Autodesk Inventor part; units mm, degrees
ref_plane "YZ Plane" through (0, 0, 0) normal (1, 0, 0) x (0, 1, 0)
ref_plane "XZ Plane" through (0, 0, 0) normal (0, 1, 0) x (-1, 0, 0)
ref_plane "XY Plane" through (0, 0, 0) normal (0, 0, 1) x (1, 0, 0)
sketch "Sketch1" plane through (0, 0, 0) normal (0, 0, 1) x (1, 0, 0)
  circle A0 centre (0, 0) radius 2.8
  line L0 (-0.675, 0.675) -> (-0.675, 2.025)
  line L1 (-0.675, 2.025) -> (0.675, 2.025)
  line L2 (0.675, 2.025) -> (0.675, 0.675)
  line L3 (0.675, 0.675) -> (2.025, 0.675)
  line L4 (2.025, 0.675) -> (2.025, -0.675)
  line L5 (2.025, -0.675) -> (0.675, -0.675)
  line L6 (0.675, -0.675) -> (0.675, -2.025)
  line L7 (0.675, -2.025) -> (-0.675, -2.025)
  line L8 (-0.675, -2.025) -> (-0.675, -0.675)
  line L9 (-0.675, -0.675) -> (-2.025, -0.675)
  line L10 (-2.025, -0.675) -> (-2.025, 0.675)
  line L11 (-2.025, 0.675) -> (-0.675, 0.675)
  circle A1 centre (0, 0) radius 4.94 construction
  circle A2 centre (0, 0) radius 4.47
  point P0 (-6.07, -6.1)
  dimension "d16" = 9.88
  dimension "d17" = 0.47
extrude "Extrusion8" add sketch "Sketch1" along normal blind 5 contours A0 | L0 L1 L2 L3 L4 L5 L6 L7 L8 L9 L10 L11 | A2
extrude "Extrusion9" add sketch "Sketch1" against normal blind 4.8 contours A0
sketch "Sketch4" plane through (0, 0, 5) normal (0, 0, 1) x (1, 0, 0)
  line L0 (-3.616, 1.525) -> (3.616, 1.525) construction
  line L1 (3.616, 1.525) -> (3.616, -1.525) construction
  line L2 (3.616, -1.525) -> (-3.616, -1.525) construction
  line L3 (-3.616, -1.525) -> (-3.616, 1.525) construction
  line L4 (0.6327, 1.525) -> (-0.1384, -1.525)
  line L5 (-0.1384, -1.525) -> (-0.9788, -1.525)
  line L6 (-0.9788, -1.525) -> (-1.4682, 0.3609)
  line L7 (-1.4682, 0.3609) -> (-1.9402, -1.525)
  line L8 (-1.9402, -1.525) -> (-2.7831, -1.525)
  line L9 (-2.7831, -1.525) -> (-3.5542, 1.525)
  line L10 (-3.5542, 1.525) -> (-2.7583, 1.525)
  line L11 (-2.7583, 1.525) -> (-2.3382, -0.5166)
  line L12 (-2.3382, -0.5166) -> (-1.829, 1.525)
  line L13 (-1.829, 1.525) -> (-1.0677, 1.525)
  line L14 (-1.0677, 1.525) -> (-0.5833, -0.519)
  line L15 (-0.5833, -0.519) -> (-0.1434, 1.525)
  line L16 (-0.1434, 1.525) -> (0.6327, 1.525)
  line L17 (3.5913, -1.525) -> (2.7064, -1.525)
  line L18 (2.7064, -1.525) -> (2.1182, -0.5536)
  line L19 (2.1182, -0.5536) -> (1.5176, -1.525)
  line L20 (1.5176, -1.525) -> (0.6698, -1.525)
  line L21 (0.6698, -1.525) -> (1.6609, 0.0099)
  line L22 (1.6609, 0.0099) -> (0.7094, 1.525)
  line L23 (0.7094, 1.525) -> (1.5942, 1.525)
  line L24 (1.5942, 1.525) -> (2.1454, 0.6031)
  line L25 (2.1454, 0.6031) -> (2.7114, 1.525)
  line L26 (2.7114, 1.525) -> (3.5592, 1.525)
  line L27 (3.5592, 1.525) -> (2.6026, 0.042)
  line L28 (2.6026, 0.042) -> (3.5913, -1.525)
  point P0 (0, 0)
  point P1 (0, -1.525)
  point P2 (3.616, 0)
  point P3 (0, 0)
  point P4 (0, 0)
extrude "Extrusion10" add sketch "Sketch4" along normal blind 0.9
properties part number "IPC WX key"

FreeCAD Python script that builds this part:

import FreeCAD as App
import Part
import Sketcher
Q = App.Units.Quantity

doc = App.newDocument("Part")
body = doc.addObject("PartDesign::Body", "Body")

# Sketch on XY plane
sketch1 = body.newObject("Sketcher::SketchObject", "Sketch")
sketch1.AttachmentSupport = (doc.getObject("XY_Plane"), [""])
sketch1.MapMode = "FlatFace"
sketch1.addGeometry(Part.Circle(App.Vector(0, 0, 0), App.Vector(0, 0, 1), 4.47), False)
sketch1.addConstraint([
    Sketcher.Constraint("Coincident", 0, 3, -1, 1),
    Sketcher.Constraint("Diameter", 0, 8.94),
])
pad1 = body.newObject("PartDesign::Pad", "Pad")
pad1.Profile = sketch1
pad1.Length = 5

# Sketch on XY plane
sketch2 = body.newObject("Sketcher::SketchObject", "Sketch001")
sketch2.AttachmentSupport = (doc.getObject("XY_Plane"), [""])
sketch2.MapMode = "FlatFace"
sketch2.addGeometry([
    Part.Circle(App.Vector(0, 0, 0), App.Vector(0, 0, 1), 2.8),  # 0
    Part.LineSegment(App.Vector(-2.025, 0.675, 0), App.Vector(-0.675, 0.675, 0)),  # 1
    Part.LineSegment(App.Vector(-0.675, 0.675, 0), App.Vector(-0.675, 2.025, 0)),  # 2
    Part.LineSegment(App.Vector(-0.675, 2.025, 0), App.Vector(0.675, 2.025, 0)),  # 3
    Part.LineSegment(App.Vector(0.675, 2.025, 0), App.Vector(0.675, 0.675, 0)),  # 4
    Part.LineSegment(App.Vector(0.675, 0.675, 0), App.Vector(2.025, 0.675, 0)),  # 5
    Part.LineSegment(App.Vector(2.025, 0.675, 0), App.Vector(2.025, -0.675, 0)),  # 6
    Part.LineSegment(App.Vector(2.025, -0.675, 0), App.Vector(0.675, -0.675, 0)),  # 7
    Part.LineSegment(App.Vector(0.675, -0.675, 0), App.Vector(0.675, -2.025, 0)),  # 8
    Part.LineSegment(App.Vector(0.675, -2.025, 0), App.Vector(-0.675, -2.025, 0)),  # 9
    Part.LineSegment(App.Vector(-0.675, -2.025, 0), App.Vector(-0.675, -0.675, 0)),  # 10
    Part.LineSegment(App.Vector(-0.675, -0.675, 0), App.Vector(-2.025, -0.675, 0)),  # 11
    Part.LineSegment(App.Vector(-2.025, -0.675, 0), App.Vector(-2.025, 0.675, 0)),  # 12
], False)
sketch2.addConstraint([
    Sketcher.Constraint("Coincident", 1, 2, 2, 1),
    Sketcher.Constraint("Coincident", 2, 2, 3, 1),
    Sketcher.Constraint("Coincident", 3, 2, 4, 1),
    Sketcher.Constraint("Coincident", 4, 2, 5, 1),
    Sketcher.Constraint("Coincident", 5, 2, 6, 1),
    Sketcher.Constraint("Coincident", 6, 2, 7, 1),
    Sketcher.Constraint("Coincident", 7, 2, 8, 1),
    Sketcher.Constraint("Coincident", 8, 2, 9, 1),
    Sketcher.Constraint("Coincident", 9, 2, 10, 1),
    Sketcher.Constraint("Coincident", 10, 2, 11, 1),
    Sketcher.Constraint("Coincident", 11, 2, 12, 1),
    Sketcher.Constraint("Coincident", 12, 2, 1, 1),
    Sketcher.Constraint("Horizontal", 1),
    Sketcher.Constraint("Vertical", 2),
    Sketcher.Constraint("Horizontal", 3),
    Sketcher.Constraint("Vertical", 4),
    Sketcher.Constraint("Horizontal", 5),
    Sketcher.Constraint("Vertical", 6),
    Sketcher.Constraint("Horizontal", 7),
    Sketcher.Constraint("Vertical", 8),
    Sketcher.Constraint("Horizontal", 9),
    Sketcher.Constraint("Vertical", 10),
    Sketcher.Constraint("Horizontal", 11),
    Sketcher.Constraint("Vertical", 12),
    Sketcher.Constraint("Coincident", 0, 3, -1, 1),
    Sketcher.Constraint("Symmetric", 1, 2, 7, 2, -1, 1),
    Sketcher.Constraint("Symmetric", 3, 2, 9, 2, -1, 1),
    Sketcher.Constraint("Symmetric", 5, 2, 11, 2, -1, 1),
    Sketcher.Constraint("Symmetric", 1, 2, 4, 2, -2),
    Sketcher.Constraint("Equal", 1, 3),
    Sketcher.Constraint("Equal", 11, 2),
    Sketcher.Constraint("Equal", 4, 6),
    Sketcher.Constraint("Diameter", 0, 5.6),
    Sketcher.Constraint("DistanceX", 1, 1, 1, 2, 1.35),
])
pad2 = body.newObject("PartDesign::Pad", "Pad001")
pad2.Profile = sketch2
pad2.Length = 4.8
pad2.Reversed = True

# Sketch on XY plane
sketch3 = body.newObject("Sketcher::SketchObject", "Sketch002")
sketch3.AttachmentSupport = (doc.getObject("XY_Plane"), [""])
sketch3.MapMode = "FlatFace"
sketch3.AttachmentOffset = App.Placement(App.Vector(0, 0, 5), App.Rotation())
sketch3.addGeometry([
    Part.LineSegment(App.Vector(-0.1384, -1.525, 0), App.Vector(0.6327, 1.525, 0)),  # 0
    Part.LineSegment(App.Vector(0.6327, 1.525, 0), App.Vector(-0.1434, 1.525, 0)),  # 1
    Part.LineSegment(App.Vector(-0.1434, 1.525, 0), App.Vector(-0.5833, -0.519, 0)),  # 2
    Part.LineSegment(App.Vector(-0.5833, -0.519, 0), App.Vector(-1.0677, 1.525, 0)),  # 3
    Part.LineSegment(App.Vector(-1.0677, 1.525, 0), App.Vector(-1.829, 1.525, 0)),  # 4
    Part.LineSegment(App.Vector(-1.829, 1.525, 0), App.Vector(-2.3382, -0.5166, 0)),  # 5
    Part.LineSegment(App.Vector(-2.3382, -0.5166, 0), App.Vector(-2.7583, 1.525, 0)),  # 6
    Part.LineSegment(App.Vector(-2.7583, 1.525, 0), App.Vector(-3.5542, 1.525, 0)),  # 7
    Part.LineSegment(App.Vector(-3.5542, 1.525, 0), App.Vector(-2.7831, -1.525, 0)),  # 8
    Part.LineSegment(App.Vector(-2.7831, -1.525, 0), App.Vector(-1.9402, -1.525, 0)),  # 9
    Part.LineSegment(App.Vector(-1.9402, -1.525, 0), App.Vector(-1.4682, 0.3609, 0)),  # 10
    Part.LineSegment(App.Vector(-1.4682, 0.3609, 0), App.Vector(-0.9788, -1.525, 0)),  # 11
    Part.LineSegment(App.Vector(-0.9788, -1.525, 0), App.Vector(-0.1384, -1.525, 0)),  # 12
    Part.LineSegment(App.Vector(2.7064, -1.525, 0), App.Vector(3.5913, -1.525, 0)),  # 13
    Part.LineSegment(App.Vector(3.5913, -1.525, 0), App.Vector(2.6026, 0.042, 0)),  # 14
    Part.LineSegment(App.Vector(2.6026, 0.042, 0), App.Vector(3.5592, 1.525, 0)),  # 15
    Part.LineSegment(App.Vector(3.5592, 1.525, 0), App.Vector(2.7114, 1.525, 0)),  # 16
    Part.LineSegment(App.Vector(2.7114, 1.525, 0), App.Vector(2.1454, 0.6031, 0)),  # 17
    Part.LineSegment(App.Vector(2.1454, 0.6031, 0), App.Vector(1.5942, 1.525, 0)),  # 18
    Part.LineSegment(App.Vector(1.5942, 1.525, 0), App.Vector(0.7094, 1.525, 0)),  # 19
    Part.LineSegment(App.Vector(0.7094, 1.525, 0), App.Vector(1.6609, 0.0099, 0)),  # 20
    Part.LineSegment(App.Vector(1.6609, 0.0099, 0), App.Vector(0.6698, -1.525, 0)),  # 21
    Part.LineSegment(App.Vector(0.6698, -1.525, 0), App.Vector(1.5176, -1.525, 0)),  # 22
    Part.LineSegment(App.Vector(1.5176, -1.525, 0), App.Vector(2.1182, -0.5536, 0)),  # 23
    Part.LineSegment(App.Vector(2.1182, -0.5536, 0), App.Vector(2.7064, -1.525, 0)),  # 24
], False)
sketch3.addConstraint([
    Sketcher.Constraint("Coincident", 0, 2, 1, 1),
    Sketcher.Constraint("Coincident", 1, 2, 2, 1),
    Sketcher.Constraint("Coincident", 2, 2, 3, 1),
    Sketcher.Constraint("Coincident", 3, 2, 4, 1),
    Sketcher.Constraint("Coincident", 4, 2, 5, 1),
    Sketcher.Constraint("Coincident", 5, 2, 6, 1),
    Sketcher.Constraint("Coincident", 6, 2, 7, 1),
    Sketcher.Constraint("Coincident", 7, 2, 8, 1),
    Sketcher.Constraint("Coincident", 8, 2, 9, 1),
    Sketcher.Constraint("Coincident", 9, 2, 10, 1),
    Sketcher.Constraint("Coincident", 10, 2, 11, 1),
    Sketcher.Constraint("Coincident", 11, 2, 12, 1),
    Sketcher.Constraint("Coincident", 12, 2, 0, 1),
    Sketcher.Constraint("Coincident", 13, 2, 14, 1),
    Sketcher.Constraint("Coincident", 14, 2, 15, 1),
    Sketcher.Constraint("Coincident", 15, 2, 16, 1),
    Sketcher.Constraint("Coincident", 16, 2, 17, 1),
    Sketcher.Constraint("Coincident", 17, 2, 18, 1),
    Sketcher.Constraint("Coincident", 18, 2, 19, 1),
    Sketcher.Constraint("Coincident", 19, 2, 20, 1),
    Sketcher.Constraint("Coincident", 20, 2, 21, 1),
    Sketcher.Constraint("Coincident", 21, 2, 22, 1),
    Sketcher.Constraint("Coincident", 22, 2, 23, 1),
    Sketcher.Constraint("Coincident", 23, 2, 24, 1),
    Sketcher.Constraint("Coincident", 24, 2, 13, 1),
    Sketcher.Constraint("Horizontal", 1),
    Sketcher.Constraint("Horizontal", 4),
    Sketcher.Constraint("Horizontal", 7),
    Sketcher.Constraint("Horizontal", 9),
    Sketcher.Constraint("Horizontal", 12),
    Sketcher.Constraint("Horizontal", 13),
    Sketcher.Constraint("Horizontal", 16),
    Sketcher.Constraint("Horizontal", 19),
    Sketcher.Constraint("Horizontal", 22),
    Sketcher.Constraint("Parallel", 15, 21),
    Sketcher.Constraint("Horizontal", 1, 2, 3, 2),
    Sketcher.Constraint("Horizontal", 4, 2, 6, 2),
    Sketcher.Constraint("Horizontal", 9, 2, 11, 2),
    Sketcher.Constraint("Horizontal", 12, 2, 13, 2),
    Sketcher.Constraint("Horizontal", 7, 2, 15, 2),
    Sketcher.Constraint("Horizontal", 16, 2, 18, 2),
    Sketcher.Constraint("Horizontal", 13, 2, 21, 2),
    Sketcher.Constraint("Equal", 13, 19),
    Sketcher.Constraint("Equal", 16, 22),
    Sketcher.Constraint("Equal", 0, 8),
    Sketcher.Constraint("Angle", 14, Q("122.25 deg")),
    Sketcher.Constraint("Angle", 20, Q("-57.8707 deg")),
    Sketcher.Constraint("Angle", 21, Q("-122.8507 deg")),
    Sketcher.Constraint("DistanceX", 1, 2, 1, 1, 0.776),
    Sketcher.Constraint("DistanceX", 7, 2, 7, 1, 0.796),
    Sketcher.Constraint("DistanceX", 9, 1, 9, 2, 0.843),
    Sketcher.Constraint("DistanceX", 13, 1, 13, 2, 0.885),
    Sketcher.Constraint("DistanceY", -1, 1, 20, 2, 0.01),
    Sketcher.Constraint("DistanceX", 2, 2, 1, 2, 0.44),
    Sketcher.Constraint("DistanceX", 6, 2, 5, 2, 0.42),
    Sketcher.Constraint("DistanceY", 8, 2, 6, 2, 3.05),
    Sketcher.Constraint("DistanceX", 5, 2, 10, 2, 0.87),
    Sketcher.Constraint("DistanceY", 2, 2, 10, 2, 0.88),
    Sketcher.Constraint("DistanceX", 11, 2, 13, 2, 4.57),
    Sketcher.Constraint("DistanceX", 0, 2, 14, 2, 1.97),
    Sketcher.Constraint("DistanceX", 16, 2, 13, 2, 0.88),
    Sketcher.Constraint("Distance", 0, 3.146),
    Sketcher.Constraint("Distance", 10, 1.944),
    Sketcher.Constraint("Distance", 18, 1.074),
    Sketcher.Constraint("Distance", 20, 1.789),
    Sketcher.Constraint("Distance", 23, 1.142),
    Sketcher.Constraint("DistanceX", 4, 2, 4, 1, 0.7613),
    Sketcher.Constraint("DistanceX", 12, 1, 12, 2, 0.8404),
    Sketcher.Constraint("DistanceX", 4, 2, -1, 1, 1.829),
    Sketcher.Constraint("DistanceX", 8, 2, -1, 1, 2.783),
    Sketcher.Constraint("DistanceY", -1, 1, 17, 2, 0.603),
    Sketcher.Constraint("DistanceX", -1, 1, 20, 2, 1.661),
    Sketcher.Constraint("DistanceX", 5, 2, 2, 2, 1.755),
    Sketcher.Constraint("Distance", 5, 2.1041),
    Sketcher.Constraint("Distance", 24, 1.1356),
])
pad3 = body.newObject("PartDesign::Pad", "Pad002")
pad3.Profile = sketch3
pad3.Length = 0.9

doc.recompute()
